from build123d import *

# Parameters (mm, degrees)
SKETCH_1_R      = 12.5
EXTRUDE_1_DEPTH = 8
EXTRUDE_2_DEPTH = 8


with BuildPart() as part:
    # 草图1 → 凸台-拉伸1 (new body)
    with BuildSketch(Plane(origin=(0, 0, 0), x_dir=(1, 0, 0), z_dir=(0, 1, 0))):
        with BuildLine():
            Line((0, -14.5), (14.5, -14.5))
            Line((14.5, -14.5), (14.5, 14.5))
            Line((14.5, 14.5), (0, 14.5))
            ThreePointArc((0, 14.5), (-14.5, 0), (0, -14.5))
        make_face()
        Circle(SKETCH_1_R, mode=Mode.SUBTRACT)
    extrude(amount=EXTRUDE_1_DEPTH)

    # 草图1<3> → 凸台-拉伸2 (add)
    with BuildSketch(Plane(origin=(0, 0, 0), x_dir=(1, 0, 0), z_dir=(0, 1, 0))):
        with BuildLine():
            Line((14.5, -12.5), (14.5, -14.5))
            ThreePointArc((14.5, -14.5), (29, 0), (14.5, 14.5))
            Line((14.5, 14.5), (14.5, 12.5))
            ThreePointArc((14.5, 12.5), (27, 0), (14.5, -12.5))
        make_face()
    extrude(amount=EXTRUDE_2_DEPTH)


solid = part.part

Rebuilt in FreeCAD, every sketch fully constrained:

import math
import FreeCAD as App
import Part
import Sketcher
from FreeCAD import Vector

doc = App.newDocument("Part")
body = doc.addObject("PartDesign::Body", "Body")

# Sketch on XZ plane
sketch1 = body.newObject("Sketcher::SketchObject", "Sketch")
sketch1.AttachmentSupport = (doc.getObject("XZ_Plane"), [""])
sketch1.MapMode = "FlatFace"
sketch1.addGeometry([
    Part.LineSegment(Vector(0, 14, 0), Vector(14, 14, 0)),  # 0
    Part.LineSegment(Vector(14, 14, 0), Vector(14, -14, 0)),  # 1
    Part.LineSegment(Vector(14, -14, 0), Vector(0, -14, 0)),  # 2
    Part.ArcOfCircle(Part.Circle(Vector(0, 0, 0), Vector(0, 0, 1), 14), math.radians(90), math.radians(270)),  # 3
    Part.Circle(Vector(0, 0, 0), Vector(0, 0, 1), 12),  # 4
], False)
sketch1.addConstraint([
    Sketcher.Constraint("Coincident", 0, 2, 1, 1),
    Sketcher.Constraint("Coincident", 1, 2, 2, 1),
    Sketcher.Constraint("Tangent", 2, 2, 3, 2),
    Sketcher.Constraint("Tangent", 3, 1, 0, 1),
    Sketcher.Constraint("Horizontal", 0),
    Sketcher.Constraint("Vertical", 1),
    Sketcher.Constraint("Horizontal", 2),
    Sketcher.Constraint("Coincident", 3, 3, -1, 1),
    Sketcher.Constraint("Coincident", 4, 3, -1, 1),
    Sketcher.Constraint("Diameter", 4, 25.0),
    Sketcher.Constraint("Radius", 3, 14.5),
    Sketcher.Constraint("DistanceX", 0, 1, 0, 2, 14.5),
])
pad1 = body.newObject("PartDesign::Pad", "Pad")
pad1.Profile = sketch1
pad1.Length = 8
pad1.Reversed = True

# Sketch on XZ plane
sketch2 = body.newObject("Sketcher::SketchObject", "Sketch001")
sketch2.AttachmentSupport = (doc.getObject("XZ_Plane"), [""])
sketch2.MapMode = "FlatFace"
sketch2.addGeometry([
    Part.LineSegment(Vector(14.5, 12.5, 0), Vector(14.5, 14.5, 0)),
    Part.ArcOfCircle(Part.Circle(Vector(14.5, 0, 0), Vector(0, 0, 1), 14.5), math.radians(-90), math.radians(90)),
    Part.LineSegment(Vector(14.5, -14.5, 0), Vector(14.5, -12.5, 0)),
    Part.ArcOfCircle(Part.Circle(Vector(14.5, 0, 0), Vector(0, 0, 1), 12.5), math.radians(-90), math.radians(90)),
], False)
sketch2.addConstraint([
    Sketcher.Constraint("Coincident", 0, 2, 1, 2),
    Sketcher.Constraint("Coincident", 1, 1, 2, 1),
    Sketcher.Constraint("Coincident", 2, 2, 3, 1),
    Sketcher.Constraint("Coincident", 3, 2, 0, 1),
    Sketcher.Constraint("Vertical", 0),
    Sketcher.Constraint("Vertical", 2),
    Sketcher.Constraint("Coincident", 3, 3, 1, 3),
    Sketcher.Constraint("Symmetric", 0, 2, 1, 1, -1),
    Sketcher.Constraint("Vertical", 3, 3, 0, 2),
    Sketcher.Constraint("Radius", 1, 14.5),
    Sketcher.Constraint("Radius", 3, 12.5),
    Sketcher.Constraint("DistanceX", -1, 1, 1, 3, 14.5),
])
pad2 = body.newObject("PartDesign::Pad", "Pad001")
pad2.Profile = sketch2
pad2.Length = 8
pad2.Reversed = True

doc.recompute()
